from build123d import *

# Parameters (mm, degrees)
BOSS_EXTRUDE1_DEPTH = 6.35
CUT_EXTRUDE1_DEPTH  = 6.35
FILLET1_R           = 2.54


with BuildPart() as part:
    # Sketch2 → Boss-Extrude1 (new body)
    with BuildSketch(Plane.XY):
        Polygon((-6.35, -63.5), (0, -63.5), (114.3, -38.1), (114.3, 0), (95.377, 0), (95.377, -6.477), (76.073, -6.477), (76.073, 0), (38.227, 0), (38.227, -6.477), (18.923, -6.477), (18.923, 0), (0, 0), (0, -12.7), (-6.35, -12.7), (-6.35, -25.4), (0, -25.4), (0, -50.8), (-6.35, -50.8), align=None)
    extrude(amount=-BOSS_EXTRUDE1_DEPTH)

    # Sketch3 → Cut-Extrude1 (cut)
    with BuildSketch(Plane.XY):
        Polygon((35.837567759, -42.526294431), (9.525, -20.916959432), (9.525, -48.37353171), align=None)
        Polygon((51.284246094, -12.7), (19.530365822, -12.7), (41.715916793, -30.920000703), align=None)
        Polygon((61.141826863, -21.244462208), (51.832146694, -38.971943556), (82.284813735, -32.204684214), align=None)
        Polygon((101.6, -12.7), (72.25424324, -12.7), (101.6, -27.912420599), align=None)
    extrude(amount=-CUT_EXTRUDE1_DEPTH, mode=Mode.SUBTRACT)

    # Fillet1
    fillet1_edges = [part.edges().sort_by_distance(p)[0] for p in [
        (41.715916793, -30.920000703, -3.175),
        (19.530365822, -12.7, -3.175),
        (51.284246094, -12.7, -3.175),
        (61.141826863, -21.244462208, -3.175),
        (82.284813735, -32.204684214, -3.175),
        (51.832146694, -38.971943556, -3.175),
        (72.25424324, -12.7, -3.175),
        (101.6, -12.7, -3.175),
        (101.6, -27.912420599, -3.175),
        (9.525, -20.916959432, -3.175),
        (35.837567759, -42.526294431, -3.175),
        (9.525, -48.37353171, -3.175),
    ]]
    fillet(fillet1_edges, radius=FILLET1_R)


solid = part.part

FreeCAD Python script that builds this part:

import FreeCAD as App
import Part
import Sketcher

V = App.Vector
Q = App.Units.Quantity


def edges_at(feature, points):
    """Names of the edges that pass closest to the given points."""
    edges = feature.Shape.Edges
    near = lambda p: min(range(len(edges)), key=lambda i: edges[i].distToShape(Part.Vertex(*p))[0])
    return sorted({f"Edge{near(p) + 1}" for p in points})


def add_polygon(sketch, points):
    """Adds a closed chain of lines whose ends are joined by coincident constraints."""
    first, n = sketch.GeometryCount, len(points)
    for a, b in zip(points, points[1:] + points[:1]):
        sketch.addGeometry(Part.LineSegment(App.Vector(*a, 0), App.Vector(*b, 0)), False)
    for i in range(n):
        sketch.addConstraint(Sketcher.Constraint("Coincident", first + i, 2, first + (i + 1) % n, 1))

doc = App.newDocument("Part")
body = doc.addObject("PartDesign::Body", "Body")

# Sketch on XY plane
sketch1 = body.newObject("Sketcher::SketchObject", "Sketch")
sketch1.AttachmentSupport = (doc.getObject("XY_Plane"), [""])
sketch1.MapMode = "FlatFace"
add_polygon(sketch1, [(-6, -64), (0, -64), (114, -38), (114, 0), (95, 0), (95, -6), (76, -6), (76, 0), (38, 0), (38, -6), (19, -6), (19, 0), (0, 0), (0, -13), (-6, -13), (-6, -25), (0, -25), (0, -51), (-6, -51)])  # lines 0-18
sketch1.addConstraint([
    Sketcher.Constraint("Horizontal", 0),
    Sketcher.Constraint("Vertical", 2),
    Sketcher.Constraint("Horizontal", 3),
    Sketcher.Constraint("Vertical", 4),
    Sketcher.Constraint("Horizontal", 5),
    Sketcher.Constraint("Vertical", 6),
    Sketcher.Constraint("Horizontal", 7),
    Sketcher.Constraint("Vertical", 8),
    Sketcher.Constraint("Horizontal", 9),
    Sketcher.Constraint("Vertical", 10),
    Sketcher.Constraint("Horizontal", 11),
    Sketcher.Constraint("Vertical", 12),
    Sketcher.Constraint("Horizontal", 13),
    Sketcher.Constraint("Vertical", 14),
    Sketcher.Constraint("Horizontal", 15),
    Sketcher.Constraint("Vertical", 16),
    Sketcher.Constraint("Horizontal", 17),
    Sketcher.Constraint("Vertical", 18),
    Sketcher.Constraint("Coincident", 11, 2, -1, 1),
    Sketcher.Constraint("PointOnObject", 0, 2, -2),
    Sketcher.Constraint("PointOnObject", 2, 2, -1),
    Sketcher.Constraint("PointOnObject", 6, 2, -1),
    Sketcher.Constraint("PointOnObject", 15, 2, -2),
    Sketcher.Constraint("Horizontal", 5, 2, 8, 2),
    Sketcher.Constraint("Vertical", 14, 2, 17, 2),
    Sketcher.Constraint("Equal", 5, 9),
    Sketcher.Constraint("Equal", 3, 11),
    Sketcher.Constraint("Equal", 12, 14),
    Sketcher.Constraint("Equal", 14, 18),
    Sketcher.Constraint("DistanceY", 16, 2, 16, 1, Q("1 in")),
    Sketcher.Constraint("DistanceY", 2, 1, 2, 2, Q("1.5 in")),
    Sketcher.Constraint("DistanceY", 12, 2, 12, 1, Q("0.5 in")),
    Sketcher.Constraint("DistanceX", 0, 1, 0, 2, Q("0.25 in")),
    Sketcher.Constraint("DistanceX", 5, 2, 5, 1, Q("0.76 in")),
    Sketcher.Constraint("DistanceX", 7, 2, 7, 1, Q("1.49 in")),
    Sketcher.Constraint("DistanceX", -1, 1, 1, 2, Q("4.5 in")),
    Sketcher.Constraint("DistanceY", 4, 2, 4, 1, Q("0.255 in")),
])
pad1 = body.newObject("PartDesign::Pad", "Pad")
pad1.Profile = sketch1
pad1.Length = Q("0.25 in")
pad1.Reversed = True

# Sketch on XY plane
sketch2 = body.newObject("Sketcher::SketchObject", "Sketch001")
sketch2.AttachmentSupport = (doc.getObject("XY_Plane"), [""])
sketch2.MapMode = "FlatFace"
add_polygon(sketch2, [(36, -43), (10, -21), (10, -48)])  # lines 0-2
add_polygon(sketch2, [(51, -13), (20, -13), (42, -31)])  # lines 3-5
add_polygon(sketch2, [(61, -21), (52, -39), (82, -32)])  # lines 6-8
add_polygon(sketch2, [(102, -13), (72, -13), (102, -28)])  # lines 9-11
sketch2.addConstraint([
    Sketcher.Constraint("Vertical", 1),
    Sketcher.Constraint("Horizontal", 3),
    Sketcher.Constraint("Horizontal", 9),
    Sketcher.Constraint("Vertical", 11),
    Sketcher.Constraint("Parallel", 0, 4),
    Sketcher.Constraint("Parallel", 5, 6),
    Sketcher.Constraint("Parallel", 2, 7),
    Sketcher.Constraint("Parallel", 8, 10),
    Sketcher.Constraint("Horizontal", 5, 2, 9, 2),
    Sketcher.Constraint("DistanceX", -1, 1, 10, 2, Q("4 in")),
    Sketcher.Constraint("DistanceY", 3, 2, -1, 1, Q("0.5 in")),
    Sketcher.Constraint("DistanceX", -1, 1, 0, 2, Q("0.375 in")),
    Sketcher.Constraint("DistanceX", 3, 2, 3, 1, 31.75388),
    Sketcher.Constraint("DistanceY", 11, 1, 11, 2, 15.212421),
    Sketcher.Constraint("DistanceY", 4, 2, -1, 1, 30.920001),
    Sketcher.Constraint("DistanceX", 3, 2, 2, 2, 16.307202),
    Sketcher.Constraint("DistanceX", 5, 2, 6, 2, 0.547901),
    Sketcher.Constraint("Distance", 0, 34.048709),
    Sketcher.Constraint("Distance", 4, 28.708311),
    Sketcher.Constraint("Distance", 6, 20.02333),
    Sketcher.Constraint("Distance", 8, 23.814961),
    Sketcher.Constraint("DistanceX", 9, 2, 9, 1, 29.345757),
    Sketcher.Constraint("DistanceY", 0, 2, -1, 1, 20.916959),
    Sketcher.Constraint("DistanceY", 2, 2, 6, 2, 3.554351),
])
pocket1 = body.newObject("PartDesign::Pocket", "Pocket")
pocket1.Profile = sketch2
pocket1.Length = Q("0.25 in")
doc.recompute()

fillet = body.newObject("PartDesign::Fillet", "Fillet")
fillet.Base = (pocket1, edges_at(pocket1, [
    (41.716, -30.92, -3.175),
    (19.53, -12.7, -3.175),
    (51.284, -12.7, -3.175),
    (61.142, -21.244, -3.175),
    (82.285, -32.205, -3.175),
    (51.832, -38.972, -3.175),
    (72.254, -12.7, -3.175),
    (101.6, -12.7, -3.175),
    (101.6, -27.912, -3.175),
    (9.525, -20.917, -3.175),
    (35.838, -42.526, -3.175),
    (9.525, -48.374, -3.175),
]))
fillet.Radius = Q("0.1 in")

doc.recompute()
